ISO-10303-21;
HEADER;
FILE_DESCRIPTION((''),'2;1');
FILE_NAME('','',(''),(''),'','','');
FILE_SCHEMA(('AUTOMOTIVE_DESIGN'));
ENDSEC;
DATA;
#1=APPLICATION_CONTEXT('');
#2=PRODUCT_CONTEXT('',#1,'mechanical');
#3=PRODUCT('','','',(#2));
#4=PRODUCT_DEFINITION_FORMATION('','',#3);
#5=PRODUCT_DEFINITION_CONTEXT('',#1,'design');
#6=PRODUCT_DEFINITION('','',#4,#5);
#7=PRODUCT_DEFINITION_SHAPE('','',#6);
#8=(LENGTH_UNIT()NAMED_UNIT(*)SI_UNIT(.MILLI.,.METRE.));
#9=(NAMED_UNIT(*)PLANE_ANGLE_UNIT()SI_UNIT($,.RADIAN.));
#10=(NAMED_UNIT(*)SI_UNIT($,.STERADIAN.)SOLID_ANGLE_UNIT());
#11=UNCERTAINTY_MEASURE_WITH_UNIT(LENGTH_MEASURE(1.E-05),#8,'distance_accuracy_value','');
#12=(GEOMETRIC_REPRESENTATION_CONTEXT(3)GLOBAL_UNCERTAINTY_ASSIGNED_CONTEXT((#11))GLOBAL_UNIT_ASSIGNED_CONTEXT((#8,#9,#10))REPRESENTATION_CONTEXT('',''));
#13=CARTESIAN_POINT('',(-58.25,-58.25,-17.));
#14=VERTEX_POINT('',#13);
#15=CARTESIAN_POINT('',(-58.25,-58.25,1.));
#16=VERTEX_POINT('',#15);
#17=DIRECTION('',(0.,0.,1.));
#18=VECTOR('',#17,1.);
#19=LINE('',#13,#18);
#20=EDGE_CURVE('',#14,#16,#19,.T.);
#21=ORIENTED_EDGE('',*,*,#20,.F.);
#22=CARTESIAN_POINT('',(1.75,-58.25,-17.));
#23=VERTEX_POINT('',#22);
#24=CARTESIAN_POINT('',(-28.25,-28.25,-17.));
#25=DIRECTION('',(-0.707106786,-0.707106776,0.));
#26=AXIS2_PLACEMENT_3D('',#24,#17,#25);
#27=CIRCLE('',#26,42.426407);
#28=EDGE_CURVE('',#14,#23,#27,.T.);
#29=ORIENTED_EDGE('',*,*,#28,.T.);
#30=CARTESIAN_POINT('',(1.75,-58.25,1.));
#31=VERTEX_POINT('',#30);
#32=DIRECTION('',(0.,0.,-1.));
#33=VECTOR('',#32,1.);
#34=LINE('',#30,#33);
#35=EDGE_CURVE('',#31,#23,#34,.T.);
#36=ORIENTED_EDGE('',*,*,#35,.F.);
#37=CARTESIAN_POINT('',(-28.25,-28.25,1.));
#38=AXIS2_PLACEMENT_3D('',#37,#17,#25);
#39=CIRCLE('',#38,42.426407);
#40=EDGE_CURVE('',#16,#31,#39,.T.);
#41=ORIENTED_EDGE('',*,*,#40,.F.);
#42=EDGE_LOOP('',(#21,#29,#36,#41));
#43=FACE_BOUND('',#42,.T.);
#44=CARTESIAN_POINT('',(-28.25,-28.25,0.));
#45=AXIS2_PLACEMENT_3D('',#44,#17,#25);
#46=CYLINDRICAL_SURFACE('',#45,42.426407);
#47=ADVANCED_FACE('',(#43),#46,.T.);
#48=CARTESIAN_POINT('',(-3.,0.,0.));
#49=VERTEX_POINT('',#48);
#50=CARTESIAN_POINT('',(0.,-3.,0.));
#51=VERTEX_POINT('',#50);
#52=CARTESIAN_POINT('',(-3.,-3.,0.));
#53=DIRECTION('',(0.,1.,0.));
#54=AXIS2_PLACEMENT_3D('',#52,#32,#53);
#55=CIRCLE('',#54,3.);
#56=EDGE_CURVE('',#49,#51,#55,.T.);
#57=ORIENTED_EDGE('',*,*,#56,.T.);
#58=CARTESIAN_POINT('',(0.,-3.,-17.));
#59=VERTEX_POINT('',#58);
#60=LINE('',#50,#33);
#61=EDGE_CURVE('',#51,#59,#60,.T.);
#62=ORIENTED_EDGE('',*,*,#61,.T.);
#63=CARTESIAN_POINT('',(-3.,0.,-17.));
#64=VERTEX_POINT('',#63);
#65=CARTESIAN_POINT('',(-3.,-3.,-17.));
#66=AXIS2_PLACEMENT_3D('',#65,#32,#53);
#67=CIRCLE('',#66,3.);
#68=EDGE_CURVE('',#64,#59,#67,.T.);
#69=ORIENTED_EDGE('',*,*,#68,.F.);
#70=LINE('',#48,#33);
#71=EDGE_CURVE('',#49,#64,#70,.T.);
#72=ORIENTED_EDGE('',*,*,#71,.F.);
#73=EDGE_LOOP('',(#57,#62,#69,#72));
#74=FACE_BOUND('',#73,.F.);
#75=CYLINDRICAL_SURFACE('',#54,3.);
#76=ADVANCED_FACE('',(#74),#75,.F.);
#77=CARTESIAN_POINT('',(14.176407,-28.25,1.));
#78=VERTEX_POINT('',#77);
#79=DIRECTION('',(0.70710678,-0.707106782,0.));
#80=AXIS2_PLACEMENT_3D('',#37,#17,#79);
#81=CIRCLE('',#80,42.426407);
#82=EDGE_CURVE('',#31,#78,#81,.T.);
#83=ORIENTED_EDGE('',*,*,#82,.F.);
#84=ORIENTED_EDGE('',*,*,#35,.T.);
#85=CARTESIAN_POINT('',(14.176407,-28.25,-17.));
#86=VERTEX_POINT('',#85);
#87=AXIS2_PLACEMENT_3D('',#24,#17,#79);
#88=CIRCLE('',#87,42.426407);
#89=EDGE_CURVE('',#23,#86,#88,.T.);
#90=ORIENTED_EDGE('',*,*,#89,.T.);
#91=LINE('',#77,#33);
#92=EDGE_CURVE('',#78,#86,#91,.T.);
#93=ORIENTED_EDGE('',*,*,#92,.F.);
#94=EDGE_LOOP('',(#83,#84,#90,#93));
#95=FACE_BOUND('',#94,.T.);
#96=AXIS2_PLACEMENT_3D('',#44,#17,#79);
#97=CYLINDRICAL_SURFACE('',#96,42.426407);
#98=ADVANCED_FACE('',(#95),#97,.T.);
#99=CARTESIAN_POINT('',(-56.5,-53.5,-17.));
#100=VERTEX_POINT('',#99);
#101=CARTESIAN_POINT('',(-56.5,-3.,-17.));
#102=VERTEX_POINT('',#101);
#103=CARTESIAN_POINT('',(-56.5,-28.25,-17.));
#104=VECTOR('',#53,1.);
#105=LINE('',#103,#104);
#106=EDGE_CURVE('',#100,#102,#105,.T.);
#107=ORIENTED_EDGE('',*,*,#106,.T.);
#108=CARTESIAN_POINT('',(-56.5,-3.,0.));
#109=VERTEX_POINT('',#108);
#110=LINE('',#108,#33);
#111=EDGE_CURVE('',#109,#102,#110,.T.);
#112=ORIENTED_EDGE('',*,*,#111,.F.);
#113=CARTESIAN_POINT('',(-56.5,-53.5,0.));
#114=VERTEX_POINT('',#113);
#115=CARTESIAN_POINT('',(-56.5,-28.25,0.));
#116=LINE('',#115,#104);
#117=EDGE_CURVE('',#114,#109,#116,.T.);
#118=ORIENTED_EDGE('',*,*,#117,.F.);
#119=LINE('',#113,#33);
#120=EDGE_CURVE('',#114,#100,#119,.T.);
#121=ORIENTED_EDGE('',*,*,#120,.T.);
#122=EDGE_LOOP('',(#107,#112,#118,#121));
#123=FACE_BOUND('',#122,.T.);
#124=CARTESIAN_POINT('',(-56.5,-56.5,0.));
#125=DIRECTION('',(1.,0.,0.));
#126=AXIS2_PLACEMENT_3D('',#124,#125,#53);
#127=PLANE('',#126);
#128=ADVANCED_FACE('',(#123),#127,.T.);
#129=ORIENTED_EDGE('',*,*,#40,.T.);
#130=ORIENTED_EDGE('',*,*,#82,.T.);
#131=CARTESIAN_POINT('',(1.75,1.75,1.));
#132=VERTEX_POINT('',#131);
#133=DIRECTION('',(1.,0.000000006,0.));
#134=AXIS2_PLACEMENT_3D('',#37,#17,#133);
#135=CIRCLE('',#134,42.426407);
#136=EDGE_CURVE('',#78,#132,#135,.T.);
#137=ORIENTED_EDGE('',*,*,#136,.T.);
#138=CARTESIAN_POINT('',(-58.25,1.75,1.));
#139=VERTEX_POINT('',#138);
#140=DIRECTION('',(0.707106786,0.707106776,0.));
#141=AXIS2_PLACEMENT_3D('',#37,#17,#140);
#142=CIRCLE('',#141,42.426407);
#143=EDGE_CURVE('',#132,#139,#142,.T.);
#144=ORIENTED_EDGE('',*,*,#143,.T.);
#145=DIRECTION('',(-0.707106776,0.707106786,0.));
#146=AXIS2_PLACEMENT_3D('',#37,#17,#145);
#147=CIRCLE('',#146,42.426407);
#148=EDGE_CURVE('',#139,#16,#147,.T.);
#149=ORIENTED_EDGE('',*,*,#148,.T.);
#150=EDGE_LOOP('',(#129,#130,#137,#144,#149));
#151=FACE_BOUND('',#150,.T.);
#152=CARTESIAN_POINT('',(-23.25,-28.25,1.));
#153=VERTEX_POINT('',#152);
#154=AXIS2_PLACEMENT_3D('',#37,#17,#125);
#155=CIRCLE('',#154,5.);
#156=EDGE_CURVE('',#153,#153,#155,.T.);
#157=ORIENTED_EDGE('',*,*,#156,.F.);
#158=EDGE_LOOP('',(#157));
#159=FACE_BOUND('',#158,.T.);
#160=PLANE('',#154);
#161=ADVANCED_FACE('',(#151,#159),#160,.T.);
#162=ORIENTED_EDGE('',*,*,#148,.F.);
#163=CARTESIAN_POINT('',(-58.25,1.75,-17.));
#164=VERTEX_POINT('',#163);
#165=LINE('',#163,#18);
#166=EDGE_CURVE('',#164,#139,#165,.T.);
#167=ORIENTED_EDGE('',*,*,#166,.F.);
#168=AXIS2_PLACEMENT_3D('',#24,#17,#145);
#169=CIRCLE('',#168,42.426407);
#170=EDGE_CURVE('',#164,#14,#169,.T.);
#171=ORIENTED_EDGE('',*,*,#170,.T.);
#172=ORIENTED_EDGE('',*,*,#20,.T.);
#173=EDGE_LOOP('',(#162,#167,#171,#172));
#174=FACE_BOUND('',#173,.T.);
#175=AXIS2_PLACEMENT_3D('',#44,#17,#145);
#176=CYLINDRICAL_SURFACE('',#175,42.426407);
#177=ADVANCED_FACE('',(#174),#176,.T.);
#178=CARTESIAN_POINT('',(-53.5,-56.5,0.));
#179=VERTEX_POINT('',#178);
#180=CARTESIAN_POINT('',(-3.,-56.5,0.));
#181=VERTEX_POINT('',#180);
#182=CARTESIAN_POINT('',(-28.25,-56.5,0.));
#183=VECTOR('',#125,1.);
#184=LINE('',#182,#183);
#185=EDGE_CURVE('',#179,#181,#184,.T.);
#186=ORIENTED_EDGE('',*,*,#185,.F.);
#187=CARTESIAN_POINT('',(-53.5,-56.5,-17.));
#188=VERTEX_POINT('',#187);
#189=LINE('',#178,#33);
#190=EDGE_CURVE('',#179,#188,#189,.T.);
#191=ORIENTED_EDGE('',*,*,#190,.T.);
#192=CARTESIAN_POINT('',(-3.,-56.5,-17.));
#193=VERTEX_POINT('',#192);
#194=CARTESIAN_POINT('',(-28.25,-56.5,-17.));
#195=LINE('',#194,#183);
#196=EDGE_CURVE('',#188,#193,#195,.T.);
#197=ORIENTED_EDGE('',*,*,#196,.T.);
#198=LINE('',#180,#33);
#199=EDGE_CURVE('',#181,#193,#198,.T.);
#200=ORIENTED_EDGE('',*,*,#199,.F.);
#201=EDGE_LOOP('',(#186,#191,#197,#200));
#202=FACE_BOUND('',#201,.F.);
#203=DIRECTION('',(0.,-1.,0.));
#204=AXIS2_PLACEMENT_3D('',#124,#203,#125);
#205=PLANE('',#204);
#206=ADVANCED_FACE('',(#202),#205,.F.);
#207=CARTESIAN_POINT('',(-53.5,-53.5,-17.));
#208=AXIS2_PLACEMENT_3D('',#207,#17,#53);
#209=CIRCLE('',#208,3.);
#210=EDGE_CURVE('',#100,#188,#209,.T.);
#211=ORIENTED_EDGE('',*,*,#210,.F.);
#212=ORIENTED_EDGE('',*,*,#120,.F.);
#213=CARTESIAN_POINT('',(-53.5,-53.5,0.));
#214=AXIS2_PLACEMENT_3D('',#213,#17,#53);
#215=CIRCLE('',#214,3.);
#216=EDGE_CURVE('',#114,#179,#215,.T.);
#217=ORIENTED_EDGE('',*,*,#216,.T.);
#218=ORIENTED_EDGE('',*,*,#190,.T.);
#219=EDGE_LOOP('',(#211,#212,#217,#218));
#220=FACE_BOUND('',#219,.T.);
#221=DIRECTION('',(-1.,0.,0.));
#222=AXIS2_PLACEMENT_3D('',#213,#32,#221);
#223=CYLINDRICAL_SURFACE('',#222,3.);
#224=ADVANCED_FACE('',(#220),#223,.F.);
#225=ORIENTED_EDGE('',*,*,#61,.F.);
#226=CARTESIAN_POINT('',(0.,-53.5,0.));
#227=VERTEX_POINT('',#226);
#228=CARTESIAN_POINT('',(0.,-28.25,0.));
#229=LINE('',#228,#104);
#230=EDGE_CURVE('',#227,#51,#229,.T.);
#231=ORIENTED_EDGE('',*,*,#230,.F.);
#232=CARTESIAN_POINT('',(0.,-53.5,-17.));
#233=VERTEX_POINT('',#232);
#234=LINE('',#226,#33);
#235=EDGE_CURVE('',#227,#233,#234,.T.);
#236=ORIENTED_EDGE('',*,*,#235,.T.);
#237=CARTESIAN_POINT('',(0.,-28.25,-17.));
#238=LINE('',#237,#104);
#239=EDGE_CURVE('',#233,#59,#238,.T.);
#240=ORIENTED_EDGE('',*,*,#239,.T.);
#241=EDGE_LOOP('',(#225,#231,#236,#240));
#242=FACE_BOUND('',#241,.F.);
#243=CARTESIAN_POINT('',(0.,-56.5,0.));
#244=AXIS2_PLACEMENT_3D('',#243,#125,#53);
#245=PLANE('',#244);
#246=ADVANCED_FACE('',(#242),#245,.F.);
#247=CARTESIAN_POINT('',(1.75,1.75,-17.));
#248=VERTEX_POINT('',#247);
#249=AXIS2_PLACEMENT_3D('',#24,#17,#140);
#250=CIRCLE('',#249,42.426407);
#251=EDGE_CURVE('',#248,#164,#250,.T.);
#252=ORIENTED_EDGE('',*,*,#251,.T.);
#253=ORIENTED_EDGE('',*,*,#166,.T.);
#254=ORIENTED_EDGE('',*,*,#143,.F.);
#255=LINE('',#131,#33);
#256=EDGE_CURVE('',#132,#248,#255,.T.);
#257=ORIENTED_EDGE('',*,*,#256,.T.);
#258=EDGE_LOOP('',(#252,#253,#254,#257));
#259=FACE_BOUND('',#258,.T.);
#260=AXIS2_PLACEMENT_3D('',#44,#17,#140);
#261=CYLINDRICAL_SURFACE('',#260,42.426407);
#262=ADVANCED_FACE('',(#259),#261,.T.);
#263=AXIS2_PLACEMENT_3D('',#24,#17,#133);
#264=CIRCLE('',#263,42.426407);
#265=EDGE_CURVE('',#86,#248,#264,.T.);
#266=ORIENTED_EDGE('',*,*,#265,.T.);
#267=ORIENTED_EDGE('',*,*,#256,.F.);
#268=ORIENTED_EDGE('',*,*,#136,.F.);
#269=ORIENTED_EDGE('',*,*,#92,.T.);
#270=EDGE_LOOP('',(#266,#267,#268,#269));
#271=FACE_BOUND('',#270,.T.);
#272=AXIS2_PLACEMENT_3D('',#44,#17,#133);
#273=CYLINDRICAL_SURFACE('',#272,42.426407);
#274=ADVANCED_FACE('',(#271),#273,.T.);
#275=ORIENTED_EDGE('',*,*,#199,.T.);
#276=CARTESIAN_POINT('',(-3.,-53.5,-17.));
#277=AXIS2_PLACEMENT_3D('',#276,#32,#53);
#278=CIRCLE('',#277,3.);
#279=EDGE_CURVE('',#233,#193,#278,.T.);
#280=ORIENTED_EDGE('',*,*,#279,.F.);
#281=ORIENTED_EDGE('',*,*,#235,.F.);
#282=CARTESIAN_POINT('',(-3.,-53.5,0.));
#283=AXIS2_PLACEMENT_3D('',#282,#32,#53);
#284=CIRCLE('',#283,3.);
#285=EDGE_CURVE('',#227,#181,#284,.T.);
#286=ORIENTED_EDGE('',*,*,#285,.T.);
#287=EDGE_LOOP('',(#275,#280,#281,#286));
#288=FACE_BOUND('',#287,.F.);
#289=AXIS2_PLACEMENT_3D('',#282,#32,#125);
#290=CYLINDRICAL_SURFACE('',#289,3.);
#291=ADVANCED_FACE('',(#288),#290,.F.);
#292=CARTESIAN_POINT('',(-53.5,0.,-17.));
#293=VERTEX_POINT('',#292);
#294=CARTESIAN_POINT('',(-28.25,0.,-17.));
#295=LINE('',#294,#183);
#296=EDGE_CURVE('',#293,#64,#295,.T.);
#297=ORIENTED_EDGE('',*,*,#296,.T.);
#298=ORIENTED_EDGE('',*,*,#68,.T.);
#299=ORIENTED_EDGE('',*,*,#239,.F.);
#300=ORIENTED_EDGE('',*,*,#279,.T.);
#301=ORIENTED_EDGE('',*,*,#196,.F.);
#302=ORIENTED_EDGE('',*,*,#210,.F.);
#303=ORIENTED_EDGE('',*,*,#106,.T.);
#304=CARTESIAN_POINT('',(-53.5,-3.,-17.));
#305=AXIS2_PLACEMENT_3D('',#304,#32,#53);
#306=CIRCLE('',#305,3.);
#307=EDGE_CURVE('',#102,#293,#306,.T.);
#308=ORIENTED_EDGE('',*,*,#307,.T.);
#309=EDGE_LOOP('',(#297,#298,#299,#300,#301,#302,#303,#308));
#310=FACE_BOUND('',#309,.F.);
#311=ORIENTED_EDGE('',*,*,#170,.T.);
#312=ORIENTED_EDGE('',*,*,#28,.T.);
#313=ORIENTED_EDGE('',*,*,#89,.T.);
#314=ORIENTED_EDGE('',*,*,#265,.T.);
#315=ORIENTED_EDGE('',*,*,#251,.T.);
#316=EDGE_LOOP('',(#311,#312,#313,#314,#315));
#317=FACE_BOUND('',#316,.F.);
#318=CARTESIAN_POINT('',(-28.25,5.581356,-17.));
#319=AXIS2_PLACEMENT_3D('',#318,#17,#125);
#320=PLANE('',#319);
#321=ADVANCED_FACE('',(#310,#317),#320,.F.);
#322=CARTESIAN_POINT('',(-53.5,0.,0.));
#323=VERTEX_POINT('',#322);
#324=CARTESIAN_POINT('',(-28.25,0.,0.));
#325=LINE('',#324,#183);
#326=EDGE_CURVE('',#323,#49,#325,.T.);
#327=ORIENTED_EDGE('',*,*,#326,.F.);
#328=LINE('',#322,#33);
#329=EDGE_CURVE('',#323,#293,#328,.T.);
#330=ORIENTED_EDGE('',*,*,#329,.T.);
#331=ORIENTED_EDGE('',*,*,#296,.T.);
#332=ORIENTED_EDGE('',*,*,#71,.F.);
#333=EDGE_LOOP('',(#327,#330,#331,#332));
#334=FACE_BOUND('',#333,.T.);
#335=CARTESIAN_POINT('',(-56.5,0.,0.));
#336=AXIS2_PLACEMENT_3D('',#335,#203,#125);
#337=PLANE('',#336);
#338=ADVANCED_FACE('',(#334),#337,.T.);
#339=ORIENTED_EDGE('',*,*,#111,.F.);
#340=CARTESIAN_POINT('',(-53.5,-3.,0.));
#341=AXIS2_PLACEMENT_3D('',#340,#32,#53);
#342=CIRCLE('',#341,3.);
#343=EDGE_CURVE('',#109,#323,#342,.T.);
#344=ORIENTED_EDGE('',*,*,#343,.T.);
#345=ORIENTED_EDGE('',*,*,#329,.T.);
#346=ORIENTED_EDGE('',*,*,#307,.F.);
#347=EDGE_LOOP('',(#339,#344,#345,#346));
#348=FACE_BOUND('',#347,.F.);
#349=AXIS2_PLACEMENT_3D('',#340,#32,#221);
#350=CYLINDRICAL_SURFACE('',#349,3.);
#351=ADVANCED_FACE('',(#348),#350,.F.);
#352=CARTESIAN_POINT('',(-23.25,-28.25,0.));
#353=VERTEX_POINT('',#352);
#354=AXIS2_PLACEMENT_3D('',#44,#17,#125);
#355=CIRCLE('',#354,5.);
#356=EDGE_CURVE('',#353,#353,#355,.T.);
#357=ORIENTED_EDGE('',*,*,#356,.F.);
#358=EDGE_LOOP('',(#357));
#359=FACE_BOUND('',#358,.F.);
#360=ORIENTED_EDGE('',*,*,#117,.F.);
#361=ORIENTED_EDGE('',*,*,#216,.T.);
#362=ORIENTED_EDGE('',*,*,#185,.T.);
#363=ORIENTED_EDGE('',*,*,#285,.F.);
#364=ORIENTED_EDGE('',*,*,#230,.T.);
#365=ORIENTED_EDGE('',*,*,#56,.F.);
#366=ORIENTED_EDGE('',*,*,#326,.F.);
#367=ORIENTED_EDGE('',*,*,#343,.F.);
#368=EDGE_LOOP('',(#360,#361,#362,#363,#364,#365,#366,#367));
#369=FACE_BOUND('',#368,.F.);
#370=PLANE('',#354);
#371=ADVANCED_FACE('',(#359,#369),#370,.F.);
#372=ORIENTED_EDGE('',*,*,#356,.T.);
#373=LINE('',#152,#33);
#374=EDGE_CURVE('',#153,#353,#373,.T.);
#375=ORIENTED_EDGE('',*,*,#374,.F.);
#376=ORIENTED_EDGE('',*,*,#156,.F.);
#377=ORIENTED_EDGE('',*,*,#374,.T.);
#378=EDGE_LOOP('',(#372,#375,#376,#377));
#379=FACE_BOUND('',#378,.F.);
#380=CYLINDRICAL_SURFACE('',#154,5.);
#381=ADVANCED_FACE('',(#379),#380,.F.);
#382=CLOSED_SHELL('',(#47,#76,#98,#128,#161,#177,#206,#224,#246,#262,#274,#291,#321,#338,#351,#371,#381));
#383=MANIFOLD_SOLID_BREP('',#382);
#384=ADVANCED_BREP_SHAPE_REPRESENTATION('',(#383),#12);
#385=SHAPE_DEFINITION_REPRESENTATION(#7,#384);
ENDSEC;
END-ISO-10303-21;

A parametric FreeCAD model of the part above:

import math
import FreeCAD as App
import Part
import Sketcher
from FreeCAD import Vector


def edges_at(feature, points):
    """Names of the edges that pass closest to the given points."""
    edges = feature.Shape.Edges
    near = lambda p: min(range(len(edges)), key=lambda i: edges[i].distToShape(Part.Vertex(*p))[0])
    return sorted({f"Edge{near(p) + 1}" for p in points})

doc = App.newDocument("Part")
body = doc.addObject("PartDesign::Body", "Body")

sketch1 = body.newObject("Sketcher::SketchObject", "Sketch")
sketch1.AttachmentSupport = (doc.getObject("XY_Plane"), [""])
sketch1.MapMode = "FlatFace"
sketch1.addGeometry([
    Part.LineSegment(Vector(-58, 2, 0), Vector(-58, -58, 0)),
    Part.LineSegment(Vector(-58, -58, 0), Vector(2, -58, 0)),
    Part.LineSegment(Vector(2, -58, 0), Vector(2, 2, 0)),
    Part.LineSegment(Vector(2, 2, 0), Vector(-58, 2, 0)),
    Part.LineSegment(Vector(0, -56, 0), Vector(-56, -56, 0)),
    Part.LineSegment(Vector(-56, -56, 0), Vector(-56, 0, 0)),
    Part.LineSegment(Vector(-56, 0, 0), Vector(0, 0, 0)),
    Part.LineSegment(Vector(0, 0, 0), Vector(0, -56, 0)),
], False)
sketch1.addConstraint([
    Sketcher.Constraint("Coincident", 0, 2, 1, 1),
    Sketcher.Constraint("Coincident", 1, 2, 2, 1),
    Sketcher.Constraint("Coincident", 2, 2, 3, 1),
    Sketcher.Constraint("Coincident", 3, 2, 0, 1),
    Sketcher.Constraint("Coincident", 4, 2, 5, 1),
    Sketcher.Constraint("Coincident", 5, 2, 6, 1),
    Sketcher.Constraint("Coincident", 6, 2, 7, 1),
    Sketcher.Constraint("Coincident", 7, 2, 4, 1),
    Sketcher.Constraint("Vertical", 0),
    Sketcher.Constraint("Horizontal", 1),
    Sketcher.Constraint("Vertical", 2),
    Sketcher.Constraint("Horizontal", 3),
    Sketcher.Constraint("Horizontal", 4),
    Sketcher.Constraint("Vertical", 5),
    Sketcher.Constraint("Horizontal", 6),
    Sketcher.Constraint("Vertical", 7),
    Sketcher.Constraint("Coincident", 6, 2, -1, 1),
    Sketcher.Constraint("Equal", 3, 0),
    Sketcher.Constraint("Equal", 6, 5),
    Sketcher.Constraint("DistanceX", 1, 1, 1, 2, 60.0),
    Sketcher.Constraint("DistanceX", 4, 2, 4, 1, 56.5),
    Sketcher.Constraint("DistanceX", 0, 2, -1, 1, 58.25),
    Sketcher.Constraint("DistanceY", 0, 2, -1, 1, 58.25),
])
pad1 = body.newObject("PartDesign::Pad", "Pad")
pad1.Profile = sketch1
pad1.Length = 17
pad1.Reversed = True

sketch2 = body.newObject("Sketcher::SketchObject", "Sketch001")
sketch2.AttachmentSupport = (doc.getObject("XY_Plane"), [""])
sketch2.MapMode = "FlatFace"
sketch2.addGeometry([
    Part.ArcOfCircle(Part.Circle(Vector(-28, -28, 0), Vector(0, 0, 1), 42), math.radians(-135), math.radians(-45)),
    Part.ArcOfCircle(Part.Circle(Vector(-28, -28, 0), Vector(0, 0, 1), 42), math.radians(-45), math.radians(0)),
    Part.ArcOfCircle(Part.Circle(Vector(-28, -28, 0), Vector(0, 0, 1), 42), math.radians(0), math.radians(45)),
    Part.ArcOfCircle(Part.Circle(Vector(-28, -28, 0), Vector(0, 0, 1), 42), math.radians(45), math.radians(135)),
    Part.ArcOfCircle(Part.Circle(Vector(-28, -28, 0), Vector(0, 0, 1), 42), math.radians(135), math.radians(225)),
], False)
sketch2.addConstraint([
    Sketcher.Constraint("Tangent", 0, 2, 1, 1),
    Sketcher.Constraint("Tangent", 1, 2, 2, 1),
    Sketcher.Constraint("Tangent", 2, 2, 3, 1),
    Sketcher.Constraint("Tangent", 3, 2, 4, 1),
    Sketcher.Constraint("Tangent", 4, 2, 0, 1),
    Sketcher.Constraint("Coincident", 2, 3, 0, 3),
    Sketcher.Constraint("Horizontal", 4, 3, 1, 2),
    Sketcher.Constraint("Horizontal", 2, 2, 3, 2),
    Sketcher.Constraint("Horizontal", 0, 2, 4, 2),
    Sketcher.Constraint("Vertical", 0, 2, 2, 2),
    Sketcher.Constraint("DistanceX", 0, 3, 0, 2, 30.0),
    Sketcher.Constraint("DistanceY", 0, 2, 0, 3, 30.0),
    Sketcher.Constraint("DistanceX", 0, 3, -1, 1, 28.25),
    Sketcher.Constraint("DistanceY", 0, 3, -1, 1, 28.25),
])
pad2 = body.newObject("PartDesign::Pad", "Pad001")
pad2.Profile = sketch2
pad2.Length = 1

sketch3 = body.newObject("Sketcher::SketchObject", "Sketch002")
sketch3.AttachmentSupport = (doc.getObject("XY_Plane"), [""])
sketch3.MapMode = "FlatFace"
sketch3.addGeometry([
    Part.ArcOfCircle(Part.Circle(Vector(-28, -28, 0), Vector(0, 0, 1), 42), math.radians(45), math.radians(135)),
    Part.LineSegment(Vector(-58, 2, 0), Vector(2, 2, 0)),
    Part.ArcOfCircle(Part.Circle(Vector(-28, -28, 0), Vector(0, 0, 1), 42), math.radians(135), math.radians(225)),
    Part.LineSegment(Vector(-58, -58, 0), Vector(-58, 2, 0)),
    Part.LineSegment(Vector(2, 2, 0), Vector(2, -58, 0)),
    Part.ArcOfCircle(Part.Circle(Vector(-28, -28, 0), Vector(0, 0, 1), 42), math.radians(-45), math.radians(0)),
    Part.ArcOfCircle(Part.Circle(Vector(-28, -28, 0), Vector(0, 0, 1), 42), math.radians(0), math.radians(45)),
    Part.LineSegment(Vector(2, -58, 0), Vector(-58, -58, 0)),
    Part.ArcOfCircle(Part.Circle(Vector(-28, -28, 0), Vector(0, 0, 1), 42), math.radians(-135), math.radians(-45)),
], False)
sketch3.addConstraint([
    Sketcher.Constraint("Coincident", 0, 1, 1, 2),
    Sketcher.Constraint("Coincident", 1, 1, 0, 2),
    Sketcher.Constraint("Coincident", 2, 1, 3, 2),
    Sketcher.Constraint("Coincident", 3, 1, 2, 2),
    Sketcher.Constraint("Coincident", 4, 2, 5, 1),
    Sketcher.Constraint("Tangent", 5, 2, 6, 1),
    Sketcher.Constraint("Coincident", 6, 2, 4, 1),
    Sketcher.Constraint("Coincident", 7, 1, 8, 2),
    Sketcher.Constraint("Coincident", 8, 1, 7, 2),
    Sketcher.Constraint("Horizontal", 1),
    Sketcher.Constraint("Vertical", 3),
    Sketcher.Constraint("Vertical", 4),
    Sketcher.Constraint("Horizontal", 7),
    Sketcher.Constraint("Coincident", 2, 3, 0, 3),
    Sketcher.Constraint("Coincident", 5, 3, 0, 3),
    Sketcher.Constraint("Coincident", 8, 3, 0, 3),
    Sketcher.Constraint("Coincident", 2, 1, 1, 1),
    Sketcher.Constraint("Coincident", 6, 2, 0, 1),
    Sketcher.Constraint("Coincident", 7, 1, 4, 2),
    Sketcher.Constraint("Equal", 2, 5),
    Sketcher.Constraint("Horizontal", 8, 3, 5, 2),
    Sketcher.Constraint("Equal", 7, 3),
    Sketcher.Constraint("DistanceX", 1, 1, 1, 2, 60.0),
    Sketcher.Constraint("DistanceX", 0, 3, -1, 1, 28.25),
    Sketcher.Constraint("DistanceY", 0, 3, -1, 1, 28.25),
])
pad3 = body.newObject("PartDesign::Pad", "Pad002")
pad3.Profile = sketch3
pad3.Length = 17
pad3.Reversed = True

sketch4 = body.newObject("Sketcher::SketchObject", "Sketch003")
sketch4.AttachmentSupport = (doc.getObject("XY_Plane"), [""])
sketch4.MapMode = "FlatFace"
sketch4.AttachmentOffset = App.Placement(Vector(0, 0, 1), App.Rotation())
sketch4.addGeometry(Part.Circle(Vector(-28, -28, 0), Vector(0, 0, 1), 5), False)
sketch4.addConstraint([
    Sketcher.Constraint("Diameter", 0, 10.0),
    Sketcher.Constraint("DistanceX", 0, 3, -1, 1, 28.25),
    Sketcher.Constraint("DistanceY", 0, 3, -1, 1, 28.25),
])
pocket1 = body.newObject("PartDesign::Pocket", "Pocket")
pocket1.Profile = sketch4
pocket1.Length = 25
doc.recompute()

fillet = body.newObject("PartDesign::Fillet", "Fillet")
fillet.Base = (pocket1, edges_at(pocket1, [
    (0, 0, -8.5),
    (-56.5, 0, -8.5),
    (-56.5, -56.5, -8.5),
    (0, -56.5, -8.5),
]))
fillet.Radius = 3

doc.recompute()
